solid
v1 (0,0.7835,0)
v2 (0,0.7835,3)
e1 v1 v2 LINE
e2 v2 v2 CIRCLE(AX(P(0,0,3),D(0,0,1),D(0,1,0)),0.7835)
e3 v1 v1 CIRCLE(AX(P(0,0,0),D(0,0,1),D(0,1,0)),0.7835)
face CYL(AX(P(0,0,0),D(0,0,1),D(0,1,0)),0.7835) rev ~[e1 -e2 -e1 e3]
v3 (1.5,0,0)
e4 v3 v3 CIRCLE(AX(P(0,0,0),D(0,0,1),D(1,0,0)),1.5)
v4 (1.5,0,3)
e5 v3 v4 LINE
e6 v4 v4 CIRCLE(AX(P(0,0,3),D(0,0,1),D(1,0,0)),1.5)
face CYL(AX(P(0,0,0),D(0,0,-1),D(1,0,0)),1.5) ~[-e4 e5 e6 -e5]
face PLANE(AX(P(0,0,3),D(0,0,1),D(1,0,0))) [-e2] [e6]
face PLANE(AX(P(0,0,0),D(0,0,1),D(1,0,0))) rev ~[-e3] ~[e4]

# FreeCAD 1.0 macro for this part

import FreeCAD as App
import Part
import Sketcher

doc = App.newDocument("Part")
body = doc.addObject("PartDesign::Body", "Body")

sketch1 = body.newObject("Sketcher::SketchObject", "Sketch")
sketch1.AttachmentSupport = (doc.getObject("XY_Plane"), [""])
sketch1.MapMode = "FlatFace"
sketch1.addGeometry(Part.Circle(App.Vector(0, 0, 0), App.Vector(0, 0, 1), 1.5), False)
sketch1.addConstraint(Sketcher.Constraint("Coincident", 0, 3, -1, 1))
sketch1.addConstraint(Sketcher.Constraint("Diameter", 0, 3.0))
pad1 = body.newObject("PartDesign::Pad", "Pad")
pad1.Profile = sketch1
pad1.Length = 3

sketch2 = body.newObject("Sketcher::SketchObject", "Sketch001")
sketch2.AttachmentSupport = (doc.getObject("XY_Plane"), [""])
sketch2.MapMode = "FlatFace"
sketch2.addGeometry(Part.Circle(App.Vector(0, 0, 0), App.Vector(0, 0, 1), 0.7835), False)
sketch2.addConstraint(Sketcher.Constraint("Coincident", 0, 3, -1, 1))
sketch2.addConstraint(Sketcher.Constraint("Diameter", 0, 1.567))
doc.recompute()
hole = body.newObject("PartDesign::Hole", "Hole")
hole.Profile = sketch2
hole.ThreadType = "None"
hole.Diameter = 1.567
hole.DepthType = "Dimension"
hole.Depth = 6.3
hole.DrillPoint = "Angled"
hole.DrillPointAngle = 118
hole.Reversed = True

doc.recompute()
